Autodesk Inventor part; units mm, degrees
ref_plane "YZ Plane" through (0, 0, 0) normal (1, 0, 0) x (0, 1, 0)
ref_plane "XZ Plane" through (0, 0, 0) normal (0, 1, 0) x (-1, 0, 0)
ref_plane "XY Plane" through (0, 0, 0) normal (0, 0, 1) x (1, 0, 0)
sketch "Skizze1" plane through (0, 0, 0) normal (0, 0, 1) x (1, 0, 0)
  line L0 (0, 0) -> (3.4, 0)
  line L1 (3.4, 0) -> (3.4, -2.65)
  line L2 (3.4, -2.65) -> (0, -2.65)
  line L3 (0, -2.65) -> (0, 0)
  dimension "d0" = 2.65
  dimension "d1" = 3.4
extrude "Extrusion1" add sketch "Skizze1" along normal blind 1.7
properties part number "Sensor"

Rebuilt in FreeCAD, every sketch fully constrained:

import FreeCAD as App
import Part
import Sketcher
from FreeCAD import Vector
Q = App.Units.Quantity

doc = App.newDocument("Part")
body = doc.addObject("PartDesign::Body", "Body")

# Sketch on XY plane
sketch1 = doc.addObject("Sketcher::SketchObject", "Sketch")
body.addObject(sketch1)
sketch1.AttachmentSupport = (doc.XY_Plane, [""])
sketch1.MapMode = "FlatFace"
sketch1.addGeometry([
    Part.LineSegment(Vector(3.4, 0, 0), Vector(0, 0, 0)),
    Part.LineSegment(Vector(0, 0, 0), Vector(0, -2.6, 0)),
    Part.LineSegment(Vector(0, -2.6, 0), Vector(3.4, -2.6, 0)),
    Part.LineSegment(Vector(3.4, -2.6, 0), Vector(3.4, 0, 0)),
], False)
sketch1.addConstraint([
    Sketcher.Constraint("Coincident", 0, 2, 1, 1),
    Sketcher.Constraint("Coincident", 1, 2, 2, 1),
    Sketcher.Constraint("Coincident", 2, 2, 3, 1),
    Sketcher.Constraint("Coincident", 3, 2, 0, 1),
    Sketcher.Constraint("Horizontal", 0),
    Sketcher.Constraint("Vertical", 1),
    Sketcher.Constraint("Horizontal", 2),
    Sketcher.Constraint("Vertical", 3),
    Sketcher.Constraint("Coincident", 0, 2, -1, 1),
    Sketcher.Constraint("DistanceX", 0, 2, 0, 1, Q("3.4 mm")),
    Sketcher.Constraint("DistanceY", 1, 2, 1, 1, Q("2.65 mm")),
])
pad1 = doc.addObject("PartDesign::Pad", "Pad")
body.addObject(pad1)
pad1.Profile = sketch1
pad1.Length = 1.7

doc.recompute()
